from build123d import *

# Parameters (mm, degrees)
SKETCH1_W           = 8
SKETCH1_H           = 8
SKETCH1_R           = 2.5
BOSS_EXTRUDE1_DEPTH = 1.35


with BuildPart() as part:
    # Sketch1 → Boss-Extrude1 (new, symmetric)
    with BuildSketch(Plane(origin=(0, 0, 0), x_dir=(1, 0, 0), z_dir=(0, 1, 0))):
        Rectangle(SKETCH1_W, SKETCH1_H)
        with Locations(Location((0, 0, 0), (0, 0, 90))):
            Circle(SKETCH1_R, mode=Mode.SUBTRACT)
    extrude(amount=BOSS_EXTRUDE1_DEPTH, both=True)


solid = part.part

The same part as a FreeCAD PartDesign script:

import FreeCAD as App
import Part
import Sketcher
Q = App.Units.Quantity


def add_polygon(sketch, points):
    """Adds a closed chain of lines whose ends are joined by coincident constraints."""
    first, n = sketch.GeometryCount, len(points)
    for a, b in zip(points, points[1:] + points[:1]):
        sketch.addGeometry(Part.LineSegment(App.Vector(*a, 0), App.Vector(*b, 0)), False)
    for i in range(n):
        sketch.addConstraint(Sketcher.Constraint("Coincident", first + i, 2, first + (i + 1) % n, 1))

doc = App.newDocument("Part")
body = doc.addObject("PartDesign::Body", "Body")

# Sketch on XZ plane
sketch1 = doc.addObject("Sketcher::SketchObject", "Sketch")
body.addObject(sketch1)
sketch1.AttachmentSupport = (doc.XZ_Plane, [""])
sketch1.MapMode = "FlatFace"
add_polygon(sketch1, [(-4, -4), (-4, 4), (4, 4), (4, -4)])  # lines 0-3
sketch1.addGeometry(Part.Circle(App.Vector(0, 0, 0), App.Vector(0, 0, 1), 2.5), False)  # 4
sketch1.addConstraint(Sketcher.Constraint("Vertical", 0))
sketch1.addConstraint(Sketcher.Constraint("Horizontal", 1))
sketch1.addConstraint(Sketcher.Constraint("Vertical", 2))
sketch1.addConstraint(Sketcher.Constraint("Horizontal", 3))
sketch1.addConstraint(Sketcher.Constraint("Coincident", 4, 3, -1, 1))
sketch1.addConstraint(Sketcher.Constraint("Symmetric", 0, 2, 2, 2, -1, 1))
sketch1.addConstraint(Sketcher.Constraint("Equal", 3, 0))
sketch1.addConstraint(Sketcher.Constraint("Diameter", 4, Q("5 mm")))
sketch1.addConstraint(Sketcher.Constraint("DistanceX", 1, 1, 1, 2, Q("8 mm")))
pad1 = doc.addObject("PartDesign::Pad", "Pad")
body.addObject(pad1)
pad1.Profile = sketch1
pad1.Length = 2.7
pad1.Midplane = True

doc.recompute()
